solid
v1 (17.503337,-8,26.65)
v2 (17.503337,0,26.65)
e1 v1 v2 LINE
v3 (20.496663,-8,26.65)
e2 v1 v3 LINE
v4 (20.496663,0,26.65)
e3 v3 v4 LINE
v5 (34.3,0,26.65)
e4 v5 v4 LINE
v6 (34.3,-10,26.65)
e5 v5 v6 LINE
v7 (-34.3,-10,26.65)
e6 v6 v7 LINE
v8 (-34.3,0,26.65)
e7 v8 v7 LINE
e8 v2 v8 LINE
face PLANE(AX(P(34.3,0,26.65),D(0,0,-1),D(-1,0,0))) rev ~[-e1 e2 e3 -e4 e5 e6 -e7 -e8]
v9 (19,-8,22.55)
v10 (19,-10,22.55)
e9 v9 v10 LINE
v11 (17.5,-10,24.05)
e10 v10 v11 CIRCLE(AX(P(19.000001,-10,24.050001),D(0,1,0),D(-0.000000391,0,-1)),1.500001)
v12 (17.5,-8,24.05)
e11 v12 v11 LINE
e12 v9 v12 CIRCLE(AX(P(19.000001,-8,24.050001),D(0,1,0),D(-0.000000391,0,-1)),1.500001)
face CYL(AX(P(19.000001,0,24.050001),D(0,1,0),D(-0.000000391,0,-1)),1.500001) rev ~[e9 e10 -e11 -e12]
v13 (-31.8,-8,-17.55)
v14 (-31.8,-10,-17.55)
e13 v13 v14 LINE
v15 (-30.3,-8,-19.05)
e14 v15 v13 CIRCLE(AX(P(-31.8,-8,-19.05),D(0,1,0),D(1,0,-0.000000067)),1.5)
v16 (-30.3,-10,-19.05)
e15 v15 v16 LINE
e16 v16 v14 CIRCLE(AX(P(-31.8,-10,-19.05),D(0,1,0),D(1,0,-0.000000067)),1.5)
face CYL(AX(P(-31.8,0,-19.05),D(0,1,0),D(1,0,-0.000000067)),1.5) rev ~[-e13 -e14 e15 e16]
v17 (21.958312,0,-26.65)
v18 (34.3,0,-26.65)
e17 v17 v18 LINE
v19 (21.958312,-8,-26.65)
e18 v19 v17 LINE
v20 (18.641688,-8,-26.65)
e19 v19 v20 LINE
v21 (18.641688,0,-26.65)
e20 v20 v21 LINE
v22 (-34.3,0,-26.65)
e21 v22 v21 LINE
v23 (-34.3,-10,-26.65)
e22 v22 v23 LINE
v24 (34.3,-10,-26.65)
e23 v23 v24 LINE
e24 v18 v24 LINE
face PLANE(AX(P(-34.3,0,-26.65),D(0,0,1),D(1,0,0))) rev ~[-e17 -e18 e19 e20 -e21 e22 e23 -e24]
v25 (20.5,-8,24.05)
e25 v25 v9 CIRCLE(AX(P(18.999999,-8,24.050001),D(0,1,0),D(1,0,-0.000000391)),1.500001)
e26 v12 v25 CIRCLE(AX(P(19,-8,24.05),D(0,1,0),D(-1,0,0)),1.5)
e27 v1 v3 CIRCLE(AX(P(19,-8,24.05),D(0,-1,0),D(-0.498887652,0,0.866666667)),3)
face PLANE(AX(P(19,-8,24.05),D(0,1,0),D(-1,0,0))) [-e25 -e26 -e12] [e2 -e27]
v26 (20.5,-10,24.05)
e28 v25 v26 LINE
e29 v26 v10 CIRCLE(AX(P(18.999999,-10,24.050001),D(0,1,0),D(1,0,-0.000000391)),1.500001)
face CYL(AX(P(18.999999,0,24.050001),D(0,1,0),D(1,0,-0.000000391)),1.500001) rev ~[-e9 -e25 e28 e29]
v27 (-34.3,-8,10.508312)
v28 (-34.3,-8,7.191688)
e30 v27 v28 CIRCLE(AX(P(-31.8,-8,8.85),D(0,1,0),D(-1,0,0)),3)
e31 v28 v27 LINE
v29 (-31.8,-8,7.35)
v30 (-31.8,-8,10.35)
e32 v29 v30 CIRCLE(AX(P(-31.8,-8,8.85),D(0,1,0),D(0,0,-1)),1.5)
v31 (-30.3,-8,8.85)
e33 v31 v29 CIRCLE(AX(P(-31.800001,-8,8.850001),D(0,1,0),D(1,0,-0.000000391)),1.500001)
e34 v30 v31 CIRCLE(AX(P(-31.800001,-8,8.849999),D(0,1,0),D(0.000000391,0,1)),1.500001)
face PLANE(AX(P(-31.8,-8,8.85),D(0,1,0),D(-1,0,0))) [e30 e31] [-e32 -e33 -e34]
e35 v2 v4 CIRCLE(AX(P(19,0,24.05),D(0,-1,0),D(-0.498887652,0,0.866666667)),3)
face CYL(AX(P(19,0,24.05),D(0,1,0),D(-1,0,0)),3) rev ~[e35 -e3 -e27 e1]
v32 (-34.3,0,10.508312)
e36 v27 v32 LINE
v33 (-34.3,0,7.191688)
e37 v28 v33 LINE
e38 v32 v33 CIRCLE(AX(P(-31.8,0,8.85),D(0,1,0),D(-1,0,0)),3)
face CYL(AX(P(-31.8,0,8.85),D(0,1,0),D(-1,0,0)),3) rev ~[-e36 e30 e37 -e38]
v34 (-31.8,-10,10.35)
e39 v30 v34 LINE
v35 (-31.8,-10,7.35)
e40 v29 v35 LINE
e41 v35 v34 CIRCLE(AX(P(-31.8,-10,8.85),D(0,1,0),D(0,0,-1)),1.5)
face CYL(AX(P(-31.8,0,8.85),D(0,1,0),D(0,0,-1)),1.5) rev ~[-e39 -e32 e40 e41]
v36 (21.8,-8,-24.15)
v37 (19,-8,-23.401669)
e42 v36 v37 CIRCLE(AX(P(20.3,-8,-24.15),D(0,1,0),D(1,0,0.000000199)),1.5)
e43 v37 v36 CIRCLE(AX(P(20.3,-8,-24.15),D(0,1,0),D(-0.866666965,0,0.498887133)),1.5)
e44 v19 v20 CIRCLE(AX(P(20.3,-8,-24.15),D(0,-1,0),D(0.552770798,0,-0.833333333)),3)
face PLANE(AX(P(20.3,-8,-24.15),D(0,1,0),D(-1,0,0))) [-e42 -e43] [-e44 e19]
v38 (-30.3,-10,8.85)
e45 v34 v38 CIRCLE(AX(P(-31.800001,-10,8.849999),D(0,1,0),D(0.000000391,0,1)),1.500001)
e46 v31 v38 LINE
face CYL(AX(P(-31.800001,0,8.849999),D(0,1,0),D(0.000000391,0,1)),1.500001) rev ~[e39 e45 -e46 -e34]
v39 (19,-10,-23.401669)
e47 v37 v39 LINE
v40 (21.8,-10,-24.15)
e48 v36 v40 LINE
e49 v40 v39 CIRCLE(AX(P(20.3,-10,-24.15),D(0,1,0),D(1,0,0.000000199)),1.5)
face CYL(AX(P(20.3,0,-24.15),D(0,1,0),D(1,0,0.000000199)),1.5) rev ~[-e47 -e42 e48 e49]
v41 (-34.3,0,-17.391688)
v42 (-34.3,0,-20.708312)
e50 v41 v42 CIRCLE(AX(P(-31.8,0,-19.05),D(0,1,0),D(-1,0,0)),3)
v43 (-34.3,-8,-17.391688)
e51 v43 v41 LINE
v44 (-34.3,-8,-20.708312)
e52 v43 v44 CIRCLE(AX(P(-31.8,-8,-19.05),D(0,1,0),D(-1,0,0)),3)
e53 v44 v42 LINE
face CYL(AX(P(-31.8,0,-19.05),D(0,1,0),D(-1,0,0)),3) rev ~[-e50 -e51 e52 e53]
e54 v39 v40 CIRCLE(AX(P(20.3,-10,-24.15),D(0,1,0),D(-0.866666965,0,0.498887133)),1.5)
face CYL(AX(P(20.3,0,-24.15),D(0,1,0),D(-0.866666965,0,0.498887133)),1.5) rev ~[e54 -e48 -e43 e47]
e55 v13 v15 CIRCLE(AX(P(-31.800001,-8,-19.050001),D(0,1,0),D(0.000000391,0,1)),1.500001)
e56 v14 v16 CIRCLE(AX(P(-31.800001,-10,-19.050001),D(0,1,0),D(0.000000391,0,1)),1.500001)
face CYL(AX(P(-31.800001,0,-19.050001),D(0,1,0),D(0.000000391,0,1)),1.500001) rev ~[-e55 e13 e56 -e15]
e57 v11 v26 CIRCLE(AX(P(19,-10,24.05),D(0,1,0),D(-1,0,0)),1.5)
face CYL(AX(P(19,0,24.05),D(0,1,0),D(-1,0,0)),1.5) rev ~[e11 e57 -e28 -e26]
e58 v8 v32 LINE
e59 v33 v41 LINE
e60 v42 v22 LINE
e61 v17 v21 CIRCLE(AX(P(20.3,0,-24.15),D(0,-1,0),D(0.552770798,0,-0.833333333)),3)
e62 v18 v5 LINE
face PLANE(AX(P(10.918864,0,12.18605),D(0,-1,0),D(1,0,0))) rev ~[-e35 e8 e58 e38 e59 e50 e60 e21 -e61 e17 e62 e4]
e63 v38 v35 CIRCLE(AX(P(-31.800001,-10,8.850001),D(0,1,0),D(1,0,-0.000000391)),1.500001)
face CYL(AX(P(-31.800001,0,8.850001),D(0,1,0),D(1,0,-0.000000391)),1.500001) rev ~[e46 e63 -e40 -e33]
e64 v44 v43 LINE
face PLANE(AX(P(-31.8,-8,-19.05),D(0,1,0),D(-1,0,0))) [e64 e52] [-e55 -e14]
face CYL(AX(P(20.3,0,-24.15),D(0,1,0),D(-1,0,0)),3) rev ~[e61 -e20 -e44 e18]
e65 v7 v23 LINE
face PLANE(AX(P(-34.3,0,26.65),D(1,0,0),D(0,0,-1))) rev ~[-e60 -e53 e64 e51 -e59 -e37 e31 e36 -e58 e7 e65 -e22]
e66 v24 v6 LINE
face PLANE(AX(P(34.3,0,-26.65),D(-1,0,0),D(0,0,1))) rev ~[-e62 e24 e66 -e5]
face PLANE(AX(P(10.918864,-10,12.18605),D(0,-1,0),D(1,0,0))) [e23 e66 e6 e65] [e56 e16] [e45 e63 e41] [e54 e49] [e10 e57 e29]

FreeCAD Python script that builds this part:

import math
import FreeCAD as App
import Part
import Sketcher
Q = App.Units.Quantity

doc = App.newDocument("Part")
body = doc.addObject("PartDesign::Body", "Body")

# Sketch on XZ plane
sketch1 = doc.addObject("Sketcher::SketchObject", "Sketch")
body.addObject(sketch1)
sketch1.AttachmentSupport = (doc.XZ_Plane, [""])
sketch1.MapMode = "FlatFace"
sketch1.addGeometry([
    Part.LineSegment(App.Vector(34.3, 26.65, 0), App.Vector(-34.3, 26.65, 0)),  # 0
    Part.LineSegment(App.Vector(-34.3, 26.65, 0), App.Vector(-34.3, -26.65, 0)),  # 1
    Part.LineSegment(App.Vector(-34.3, -26.65, 0), App.Vector(34.3, -26.65, 0)),  # 2
    Part.LineSegment(App.Vector(34.3, -26.65, 0), App.Vector(34.3, 26.65, 0)),  # 3
    Part.ArcOfCircle(Part.Circle(App.Vector(-31.800001, -19.050001, 0), App.Vector(0, 0, 1), 1.500001), math.radians(0.000022), math.radians(89.999978)),  # 4
    Part.ArcOfCircle(Part.Circle(App.Vector(-31.8, -19.05, 0), App.Vector(0, 0, 1), 1.5), math.radians(90.000004), math.radians(359.999996)),  # 5
    Part.ArcOfCircle(Part.Circle(App.Vector(20.3, -24.15, 0), App.Vector(0, 0, 1), 1.5), math.radians(-0.000016), math.radians(150.073599)),  # 6
    Part.ArcOfCircle(Part.Circle(App.Vector(20.3, -24.15, 0), App.Vector(0, 0, 1), 1.5), math.radians(150.073572), math.radians(360.000011)),  # 7
    Part.ArcOfCircle(Part.Circle(App.Vector(-31.800001, 8.850001, 0), App.Vector(0, 0, 1), 1.500001), math.radians(-89.999978), math.radians(-0.000022)),  # 8
    Part.ArcOfCircle(Part.Circle(App.Vector(-31.8, 8.85, 0), App.Vector(0, 0, 1), 1.5), math.radians(90), math.radians(270)),  # 9
    Part.ArcOfCircle(Part.Circle(App.Vector(-31.800001, 8.849999, 0), App.Vector(0, 0, 1), 1.500001), math.radians(0.000022), math.radians(89.999978)),  # 10
    Part.ArcOfCircle(Part.Circle(App.Vector(19, 24.05, 0), App.Vector(0, 0, 1), 1.5), math.radians(0), math.radians(180)),  # 11
    Part.ArcOfCircle(Part.Circle(App.Vector(18.999999, 24.050001, 0), App.Vector(0, 0, 1), 1.500001), math.radians(-89.999978), math.radians(-0.000022)),  # 12
    Part.ArcOfCircle(Part.Circle(App.Vector(19.000001, 24.050001, 0), App.Vector(0, 0, 1), 1.500001), math.radians(-179.999978), math.radians(-90.000022)),  # 13
], False)
sketch1.addConstraint([
    Sketcher.Constraint("Coincident", 0, 2, 1, 1),
    Sketcher.Constraint("Coincident", 1, 2, 2, 1),
    Sketcher.Constraint("Coincident", 2, 2, 3, 1),
    Sketcher.Constraint("Coincident", 3, 2, 0, 1),
    Sketcher.Constraint("Tangent", 4, 1, 5, 2),
    Sketcher.Constraint("Coincident", 5, 1, 4, 2),
    Sketcher.Constraint("Tangent", 6, 1, 7, 2),
    Sketcher.Constraint("Coincident", 7, 1, 6, 2),
    Sketcher.Constraint("Tangent", 8, 1, 9, 2),
    Sketcher.Constraint("Tangent", 9, 1, 10, 2),
    Sketcher.Constraint("Tangent", 10, 1, 8, 2),
    Sketcher.Constraint("Tangent", 11, 1, 12, 2),
    Sketcher.Constraint("Tangent", 12, 1, 13, 2),
    Sketcher.Constraint("Tangent", 13, 1, 11, 2),
    Sketcher.Constraint("Horizontal", 0),
    Sketcher.Constraint("Vertical", 1),
    Sketcher.Constraint("Horizontal", 2),
    Sketcher.Constraint("Vertical", 3),
    Sketcher.Constraint("Equal", 5, 6),
    Sketcher.Constraint("Equal", 7, 8),
    Sketcher.Constraint("Equal", 10, 11),
    Sketcher.Constraint("Symmetric", 0, 2, 2, 2, -1, 1),
    Sketcher.Constraint("Horizontal", 5, 3, 4, 1),
    Sketcher.Constraint("Horizontal", 7, 3, 6, 1),
    Sketcher.Constraint("Horizontal", 9, 3, 10, 1),
    Sketcher.Constraint("Horizontal", 13, 3, 11, 1),
    Sketcher.Constraint("Horizontal", 11, 1, 13, 1),
    Sketcher.Constraint("Vertical", 5, 3, 8, 3),
    Sketcher.Constraint("Vertical", 10, 3, 5, 1),
    Sketcher.Constraint("Vertical", 13, 3, 7, 1),
    Sketcher.Constraint("Vertical", 5, 1, 8, 1),
    Sketcher.Constraint("Vertical", 8, 1, 9, 1),
    Sketcher.Constraint("Vertical", 7, 1, 12, 1),
    Sketcher.Constraint("Radius", 4, Q("1.500001 mm")),
    Sketcher.Constraint("DistanceX", 0, 2, 0, 1, Q("68.6 mm")),
    Sketcher.Constraint("DistanceY", 1, 2, 1, 1, Q("53.3 mm")),
    Sketcher.Constraint("DistanceX", -1, 1, 11, 3, Q("19 mm")),
    Sketcher.Constraint("DistanceY", 6, 3, 8, 3, Q("33 mm")),
    Sketcher.Constraint("DistanceX", 6, 3, 2, 2, Q("14 mm")),
    Sketcher.Constraint("DistanceX", 1, 2, 4, 1, Q("4 mm")),
    Sketcher.Constraint("DistanceY", 6, 3, 5, 3, Q("5.1 mm")),
    Sketcher.Constraint("DistanceY", 6, 3, 11, 3, Q("48.2 mm")),
    Sketcher.Constraint("DistanceY", 8, 3, 0, 2, Q("17.799999 mm")),
])
pad1 = doc.addObject("PartDesign::Pad", "Pad")
body.addObject(pad1)
pad1.Profile = sketch1
pad1.Length = 10

# Sketch on XZ plane
sketch2 = doc.addObject("Sketcher::SketchObject", "Sketch001")
body.addObject(sketch2)
sketch2.AttachmentSupport = (doc.XZ_Plane, [""])
sketch2.MapMode = "FlatFace"
sketch2.addGeometry([
    Part.Circle(App.Vector(19, 24.05, 0), App.Vector(0, 0, 1), 3),
    Part.Circle(App.Vector(-31.8, 8.85, 0), App.Vector(0, 0, 1), 3),
    Part.Circle(App.Vector(-31.8, -19.05, 0), App.Vector(0, 0, 1), 3),
    Part.Circle(App.Vector(20.3, -24.15, 0), App.Vector(0, 0, 1), 3),
], False)
sketch2.addConstraint([
    Sketcher.Constraint("Equal", 0, 1),
    Sketcher.Constraint("Equal", 1, 2),
    Sketcher.Constraint("Equal", 2, 3),
    Sketcher.Constraint("Vertical", 1, 3, 2, 3),
    Sketcher.Constraint("Diameter", 0, Q("6 mm")),
    Sketcher.Constraint("DistanceX", -1, 1, 0, 3, Q("19 mm")),
    Sketcher.Constraint("DistanceY", 3, 3, 1, 3, Q("33 mm")),
    Sketcher.Constraint("DistanceX", 1, 3, -1, 1, Q("31.8 mm")),
    Sketcher.Constraint("DistanceX", -1, 1, 3, 3, Q("20.3 mm")),
    Sketcher.Constraint("DistanceY", 1, 3, 0, 3, Q("15.2 mm")),
    Sketcher.Constraint("DistanceY", 2, 3, 1, 3, Q("27.9 mm")),
    Sketcher.Constraint("DistanceY", -1, 1, 0, 3, Q("24.05 mm")),
])
pocket1 = doc.addObject("PartDesign::Pocket", "Pocket")
body.addObject(pocket1)
pocket1.Profile = sketch2
pocket1.Length = 8
pocket1.Reversed = True

doc.recompute()
